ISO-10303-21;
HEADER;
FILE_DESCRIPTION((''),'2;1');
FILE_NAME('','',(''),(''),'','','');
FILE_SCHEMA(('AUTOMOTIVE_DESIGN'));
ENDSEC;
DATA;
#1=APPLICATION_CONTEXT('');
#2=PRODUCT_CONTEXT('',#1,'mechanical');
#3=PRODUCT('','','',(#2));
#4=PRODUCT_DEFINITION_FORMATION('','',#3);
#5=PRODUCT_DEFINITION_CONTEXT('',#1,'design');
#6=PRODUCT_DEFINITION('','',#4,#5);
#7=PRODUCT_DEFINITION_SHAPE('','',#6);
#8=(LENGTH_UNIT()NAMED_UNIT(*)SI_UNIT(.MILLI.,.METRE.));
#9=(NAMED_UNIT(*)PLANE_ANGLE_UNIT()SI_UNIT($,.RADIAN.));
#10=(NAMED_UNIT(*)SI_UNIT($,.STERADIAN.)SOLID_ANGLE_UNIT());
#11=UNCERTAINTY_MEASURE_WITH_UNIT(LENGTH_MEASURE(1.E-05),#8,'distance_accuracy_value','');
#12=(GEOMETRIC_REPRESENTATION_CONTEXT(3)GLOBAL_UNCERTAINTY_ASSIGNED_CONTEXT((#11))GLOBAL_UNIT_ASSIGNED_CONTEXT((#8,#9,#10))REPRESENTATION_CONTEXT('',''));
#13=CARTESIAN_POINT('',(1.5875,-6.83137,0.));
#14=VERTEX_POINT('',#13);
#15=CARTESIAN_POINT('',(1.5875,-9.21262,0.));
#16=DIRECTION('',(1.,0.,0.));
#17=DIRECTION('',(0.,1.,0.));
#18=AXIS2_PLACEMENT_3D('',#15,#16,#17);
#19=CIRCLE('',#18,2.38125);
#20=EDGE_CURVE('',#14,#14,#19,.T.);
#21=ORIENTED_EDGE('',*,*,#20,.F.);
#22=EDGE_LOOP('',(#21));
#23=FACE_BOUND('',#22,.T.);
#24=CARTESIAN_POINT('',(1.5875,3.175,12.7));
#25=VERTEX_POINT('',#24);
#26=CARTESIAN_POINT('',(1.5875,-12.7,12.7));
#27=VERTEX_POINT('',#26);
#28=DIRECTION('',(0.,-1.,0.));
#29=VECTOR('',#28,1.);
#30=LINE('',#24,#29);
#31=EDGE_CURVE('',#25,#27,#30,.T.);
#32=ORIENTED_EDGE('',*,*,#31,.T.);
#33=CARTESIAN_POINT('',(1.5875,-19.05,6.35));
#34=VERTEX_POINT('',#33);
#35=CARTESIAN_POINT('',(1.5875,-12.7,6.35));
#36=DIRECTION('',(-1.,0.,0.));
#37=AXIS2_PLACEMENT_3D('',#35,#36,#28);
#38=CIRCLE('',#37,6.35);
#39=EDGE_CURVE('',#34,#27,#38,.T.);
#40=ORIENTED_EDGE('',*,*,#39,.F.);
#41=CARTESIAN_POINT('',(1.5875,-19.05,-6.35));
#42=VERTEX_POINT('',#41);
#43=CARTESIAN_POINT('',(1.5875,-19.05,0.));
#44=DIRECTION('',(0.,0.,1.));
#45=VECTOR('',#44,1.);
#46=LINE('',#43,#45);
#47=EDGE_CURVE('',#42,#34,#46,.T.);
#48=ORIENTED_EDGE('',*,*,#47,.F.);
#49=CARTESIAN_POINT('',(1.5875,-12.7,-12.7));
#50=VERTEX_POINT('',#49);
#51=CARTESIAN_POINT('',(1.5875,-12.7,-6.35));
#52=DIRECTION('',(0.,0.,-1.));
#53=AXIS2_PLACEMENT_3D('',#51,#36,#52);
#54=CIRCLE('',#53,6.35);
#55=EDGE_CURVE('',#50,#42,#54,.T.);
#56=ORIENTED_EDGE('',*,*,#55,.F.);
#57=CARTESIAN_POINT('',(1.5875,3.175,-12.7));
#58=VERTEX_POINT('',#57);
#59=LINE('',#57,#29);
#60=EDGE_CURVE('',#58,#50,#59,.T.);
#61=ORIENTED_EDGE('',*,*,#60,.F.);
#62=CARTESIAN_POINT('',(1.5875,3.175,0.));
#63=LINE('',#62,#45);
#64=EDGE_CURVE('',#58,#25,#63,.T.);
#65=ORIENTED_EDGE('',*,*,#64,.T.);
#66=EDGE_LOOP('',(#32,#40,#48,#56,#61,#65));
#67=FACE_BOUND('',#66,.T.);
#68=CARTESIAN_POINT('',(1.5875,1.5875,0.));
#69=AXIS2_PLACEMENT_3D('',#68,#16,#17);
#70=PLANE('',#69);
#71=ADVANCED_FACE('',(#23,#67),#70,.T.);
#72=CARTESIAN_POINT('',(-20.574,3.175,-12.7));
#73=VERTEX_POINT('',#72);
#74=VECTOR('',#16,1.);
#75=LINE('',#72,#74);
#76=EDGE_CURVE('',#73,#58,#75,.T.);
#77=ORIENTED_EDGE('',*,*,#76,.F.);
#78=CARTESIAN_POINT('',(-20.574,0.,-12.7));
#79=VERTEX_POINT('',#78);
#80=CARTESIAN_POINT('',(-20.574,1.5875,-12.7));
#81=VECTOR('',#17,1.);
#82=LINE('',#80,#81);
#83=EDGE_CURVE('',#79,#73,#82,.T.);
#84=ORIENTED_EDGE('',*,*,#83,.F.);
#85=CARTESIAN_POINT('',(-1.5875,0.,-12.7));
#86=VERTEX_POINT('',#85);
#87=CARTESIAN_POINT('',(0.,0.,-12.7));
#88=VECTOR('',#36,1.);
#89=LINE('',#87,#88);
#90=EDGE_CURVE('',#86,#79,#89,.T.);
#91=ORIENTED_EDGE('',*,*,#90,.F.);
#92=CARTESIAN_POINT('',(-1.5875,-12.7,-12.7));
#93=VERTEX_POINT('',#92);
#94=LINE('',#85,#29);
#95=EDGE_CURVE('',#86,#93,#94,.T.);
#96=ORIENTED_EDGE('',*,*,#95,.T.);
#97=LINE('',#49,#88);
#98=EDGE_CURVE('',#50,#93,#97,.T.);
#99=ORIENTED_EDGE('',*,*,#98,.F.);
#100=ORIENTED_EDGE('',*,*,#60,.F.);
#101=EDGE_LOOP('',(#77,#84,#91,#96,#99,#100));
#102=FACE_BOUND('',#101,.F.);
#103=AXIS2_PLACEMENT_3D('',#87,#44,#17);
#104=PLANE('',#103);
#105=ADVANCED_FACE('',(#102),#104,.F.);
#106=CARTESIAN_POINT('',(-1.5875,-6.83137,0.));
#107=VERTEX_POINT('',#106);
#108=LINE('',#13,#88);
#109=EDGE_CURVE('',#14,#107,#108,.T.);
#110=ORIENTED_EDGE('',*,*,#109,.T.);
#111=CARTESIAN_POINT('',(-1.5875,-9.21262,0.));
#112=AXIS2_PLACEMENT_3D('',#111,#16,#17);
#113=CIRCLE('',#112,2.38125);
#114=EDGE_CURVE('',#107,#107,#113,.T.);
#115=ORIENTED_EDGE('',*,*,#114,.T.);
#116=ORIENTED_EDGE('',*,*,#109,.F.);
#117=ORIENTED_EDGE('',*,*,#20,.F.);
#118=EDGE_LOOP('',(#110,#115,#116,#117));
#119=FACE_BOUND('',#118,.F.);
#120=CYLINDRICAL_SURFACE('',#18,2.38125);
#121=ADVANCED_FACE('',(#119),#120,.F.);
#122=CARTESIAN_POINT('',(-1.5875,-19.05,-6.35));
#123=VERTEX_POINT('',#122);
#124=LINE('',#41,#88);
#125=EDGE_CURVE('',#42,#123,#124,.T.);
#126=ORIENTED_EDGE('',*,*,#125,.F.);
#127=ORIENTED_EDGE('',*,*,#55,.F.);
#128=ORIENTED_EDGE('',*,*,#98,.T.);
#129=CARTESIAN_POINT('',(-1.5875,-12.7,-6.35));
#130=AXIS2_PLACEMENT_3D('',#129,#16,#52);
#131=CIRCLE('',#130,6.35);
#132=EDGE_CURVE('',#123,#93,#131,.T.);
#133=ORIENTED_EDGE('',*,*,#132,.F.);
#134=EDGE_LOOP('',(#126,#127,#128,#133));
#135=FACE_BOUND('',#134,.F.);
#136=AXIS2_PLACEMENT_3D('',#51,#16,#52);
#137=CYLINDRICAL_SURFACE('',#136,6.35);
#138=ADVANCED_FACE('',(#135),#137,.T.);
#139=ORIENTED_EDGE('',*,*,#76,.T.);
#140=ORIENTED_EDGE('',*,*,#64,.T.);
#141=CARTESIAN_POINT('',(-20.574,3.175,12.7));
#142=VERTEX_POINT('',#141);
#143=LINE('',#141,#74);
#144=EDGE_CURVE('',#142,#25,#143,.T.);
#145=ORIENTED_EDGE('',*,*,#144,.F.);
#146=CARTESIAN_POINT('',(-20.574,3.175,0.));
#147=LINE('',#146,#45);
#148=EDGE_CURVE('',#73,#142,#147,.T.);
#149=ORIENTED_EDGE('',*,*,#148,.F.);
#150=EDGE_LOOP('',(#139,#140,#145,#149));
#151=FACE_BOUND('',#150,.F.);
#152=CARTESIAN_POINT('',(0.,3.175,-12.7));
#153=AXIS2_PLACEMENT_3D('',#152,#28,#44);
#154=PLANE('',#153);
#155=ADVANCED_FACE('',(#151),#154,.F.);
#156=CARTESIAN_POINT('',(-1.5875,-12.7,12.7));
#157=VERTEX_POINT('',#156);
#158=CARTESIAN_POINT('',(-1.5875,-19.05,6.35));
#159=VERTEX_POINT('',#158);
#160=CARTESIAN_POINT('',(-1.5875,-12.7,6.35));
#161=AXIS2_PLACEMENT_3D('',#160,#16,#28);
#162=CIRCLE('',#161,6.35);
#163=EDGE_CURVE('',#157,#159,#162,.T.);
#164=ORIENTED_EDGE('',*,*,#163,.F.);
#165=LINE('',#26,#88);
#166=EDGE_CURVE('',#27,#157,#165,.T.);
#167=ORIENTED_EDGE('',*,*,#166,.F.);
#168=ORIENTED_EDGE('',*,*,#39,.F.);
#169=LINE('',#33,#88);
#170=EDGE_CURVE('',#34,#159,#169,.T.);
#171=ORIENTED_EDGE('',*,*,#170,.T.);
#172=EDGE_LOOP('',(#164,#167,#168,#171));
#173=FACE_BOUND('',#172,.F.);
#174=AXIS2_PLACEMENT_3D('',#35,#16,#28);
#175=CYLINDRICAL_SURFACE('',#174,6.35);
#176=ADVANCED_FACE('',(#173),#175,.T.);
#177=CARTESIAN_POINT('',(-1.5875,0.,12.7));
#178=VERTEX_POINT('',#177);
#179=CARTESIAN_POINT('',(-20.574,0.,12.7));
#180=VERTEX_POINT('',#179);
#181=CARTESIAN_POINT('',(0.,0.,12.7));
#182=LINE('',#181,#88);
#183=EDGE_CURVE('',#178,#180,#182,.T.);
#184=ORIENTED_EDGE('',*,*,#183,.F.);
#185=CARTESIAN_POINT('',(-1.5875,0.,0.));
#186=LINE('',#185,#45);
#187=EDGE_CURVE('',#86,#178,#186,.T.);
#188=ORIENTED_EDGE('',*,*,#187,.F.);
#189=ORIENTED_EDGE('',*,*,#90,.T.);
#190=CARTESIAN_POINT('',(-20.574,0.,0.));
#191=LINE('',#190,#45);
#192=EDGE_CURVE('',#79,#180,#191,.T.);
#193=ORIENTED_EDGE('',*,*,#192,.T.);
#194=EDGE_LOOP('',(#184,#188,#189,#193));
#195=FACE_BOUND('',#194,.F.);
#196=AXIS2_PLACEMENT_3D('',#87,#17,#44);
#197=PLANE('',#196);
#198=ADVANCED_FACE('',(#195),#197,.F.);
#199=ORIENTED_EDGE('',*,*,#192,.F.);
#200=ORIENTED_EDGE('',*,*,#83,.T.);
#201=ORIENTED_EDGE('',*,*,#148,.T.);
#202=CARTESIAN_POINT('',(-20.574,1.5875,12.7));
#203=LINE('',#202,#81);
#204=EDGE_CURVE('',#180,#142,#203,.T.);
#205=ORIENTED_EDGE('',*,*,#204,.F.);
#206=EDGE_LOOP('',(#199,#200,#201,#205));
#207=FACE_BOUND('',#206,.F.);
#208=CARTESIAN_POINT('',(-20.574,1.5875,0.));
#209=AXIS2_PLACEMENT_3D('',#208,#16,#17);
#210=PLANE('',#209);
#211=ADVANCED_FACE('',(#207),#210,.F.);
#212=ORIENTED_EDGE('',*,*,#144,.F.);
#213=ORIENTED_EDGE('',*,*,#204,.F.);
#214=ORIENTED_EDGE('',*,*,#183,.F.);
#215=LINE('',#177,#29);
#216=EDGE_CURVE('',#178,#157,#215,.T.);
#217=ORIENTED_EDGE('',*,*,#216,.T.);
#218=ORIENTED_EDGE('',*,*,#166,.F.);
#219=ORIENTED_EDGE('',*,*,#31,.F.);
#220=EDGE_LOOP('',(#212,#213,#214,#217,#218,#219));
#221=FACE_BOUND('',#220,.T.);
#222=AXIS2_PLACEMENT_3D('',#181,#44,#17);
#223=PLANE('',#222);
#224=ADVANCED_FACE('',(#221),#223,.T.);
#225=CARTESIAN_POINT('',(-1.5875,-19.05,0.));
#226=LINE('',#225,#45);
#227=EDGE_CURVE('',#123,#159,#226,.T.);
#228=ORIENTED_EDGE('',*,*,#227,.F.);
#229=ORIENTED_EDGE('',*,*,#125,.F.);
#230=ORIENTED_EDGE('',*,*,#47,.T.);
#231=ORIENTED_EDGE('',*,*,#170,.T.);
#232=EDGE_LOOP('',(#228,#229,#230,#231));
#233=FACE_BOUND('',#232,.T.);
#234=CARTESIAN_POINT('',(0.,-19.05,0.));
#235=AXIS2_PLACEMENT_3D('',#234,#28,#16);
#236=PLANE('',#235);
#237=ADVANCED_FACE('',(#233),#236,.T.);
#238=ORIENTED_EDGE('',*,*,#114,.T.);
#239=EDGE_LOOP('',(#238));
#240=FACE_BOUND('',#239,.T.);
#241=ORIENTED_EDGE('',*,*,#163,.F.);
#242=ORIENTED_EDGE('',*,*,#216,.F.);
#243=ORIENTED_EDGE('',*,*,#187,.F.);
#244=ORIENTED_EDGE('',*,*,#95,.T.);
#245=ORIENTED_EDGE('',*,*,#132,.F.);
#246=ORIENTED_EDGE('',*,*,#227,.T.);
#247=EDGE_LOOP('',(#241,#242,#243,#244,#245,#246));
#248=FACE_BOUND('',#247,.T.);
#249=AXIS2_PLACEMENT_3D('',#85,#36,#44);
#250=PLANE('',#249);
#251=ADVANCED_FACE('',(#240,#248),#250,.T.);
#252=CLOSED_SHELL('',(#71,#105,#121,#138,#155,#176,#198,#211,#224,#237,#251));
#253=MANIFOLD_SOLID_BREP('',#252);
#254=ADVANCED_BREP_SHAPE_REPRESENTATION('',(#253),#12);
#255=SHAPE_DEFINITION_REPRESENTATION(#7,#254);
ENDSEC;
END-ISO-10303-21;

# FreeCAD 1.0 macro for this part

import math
import FreeCAD as App
import Part
import Sketcher

V = App.Vector
Q = App.Units.Quantity

doc = App.newDocument("Part")
body = doc.addObject("PartDesign::Body", "Body")

sketch1 = body.newObject("Sketcher::SketchObject", "Sketch")
sketch1.AttachmentSupport = (doc.getObject("XZ_Plane"), [""])
sketch1.MapMode = "FlatFace"
sketch1.addGeometry([
    Part.LineSegment(V(-1.6, 12.7, 0), V(-1.6, -12.7, 0)),
    Part.LineSegment(V(-1.6, -12.7, 0), V(1.6, -12.7, 0)),
    Part.LineSegment(V(1.6, -12.7, 0), V(1.6, 12.7, 0)),
    Part.LineSegment(V(1.6, 12.7, 0), V(-1.6, 12.7, 0)),
], False)
sketch1.addConstraint([
    Sketcher.Constraint("Coincident", 0, 2, 1, 1),
    Sketcher.Constraint("Coincident", 1, 2, 2, 1),
    Sketcher.Constraint("Coincident", 2, 2, 3, 1),
    Sketcher.Constraint("Coincident", 3, 2, 0, 1),
    Sketcher.Constraint("Vertical", 0),
    Sketcher.Constraint("Horizontal", 1),
    Sketcher.Constraint("Vertical", 2),
    Sketcher.Constraint("Horizontal", 3),
    Sketcher.Constraint("Symmetric", 0, 2, 2, 2, -1, 1),
    Sketcher.Constraint("DistanceY", 0, 2, 0, 1, Q("1 in")),
    Sketcher.Constraint("DistanceX", 1, 1, 1, 2, Q("0.125 in")),
])
pad1 = body.newObject("PartDesign::Pad", "Pad")
pad1.Profile = sketch1
pad1.Length = Q("0.75 in")

sketch2 = body.newObject("Sketcher::SketchObject", "Sketch001")
sketch2.AttachmentSupport = (doc.getObject("YZ_Plane"), [""])
sketch2.MapMode = "FlatFace"
sketch2.AttachmentOffset = App.Placement(V(0, 0, 0.0625 * 25.4), App.Rotation())
sketch2.addGeometry([
    Part.ArcOfCircle(Part.Circle(V(-12.7, 6.3, 0), V(0, 0, 1), 6.3), math.radians(90), math.radians(180)),
    Part.LineSegment(V(-12.7, 12.7, 0), V(-19.1, 12.7, 0)),
    Part.LineSegment(V(-19.1, 12.7, 0), V(-19.1, 6.3, 0)),
    Part.ArcOfCircle(Part.Circle(V(-12.7, -6.3, 0), V(0, 0, 1), 6.3), math.radians(180), math.radians(270)),
    Part.LineSegment(V(-19.1, -6.3, 0), V(-19.1, -12.7, 0)),
    Part.LineSegment(V(-19.1, -12.7, 0), V(-12.7, -12.7, 0)),
    Part.Circle(V(-9.2, 0, 0), V(0, 0, 1), 2.4),
], False)
sketch2.addConstraint([
    Sketcher.Constraint("Tangent", 0, 1, 1, 1),
    Sketcher.Constraint("Coincident", 1, 2, 2, 1),
    Sketcher.Constraint("Tangent", 2, 2, 0, 2),
    Sketcher.Constraint("Tangent", 3, 1, 4, 1),
    Sketcher.Constraint("Coincident", 4, 2, 5, 1),
    Sketcher.Constraint("Tangent", 5, 2, 3, 2),
    Sketcher.Constraint("Horizontal", 1),
    Sketcher.Constraint("Vertical", 2),
    Sketcher.Constraint("Vertical", 4),
    Sketcher.Constraint("Horizontal", 5),
    Sketcher.Constraint("Equal", 0, 3),
    Sketcher.Constraint("Symmetric", 0, 3, 3, 3, -1),
    Sketcher.Constraint("PointOnObject", 6, 3, -1),
    Sketcher.Constraint("Radius", 0, Q("0.25 in")),
    Sketcher.Constraint("Diameter", 6, Q("0.1875 in")),
    Sketcher.Constraint("DistanceX", 0, 3, -1, 1, Q("0.5 in")),
    Sketcher.Constraint("DistanceY", -1, 1, 0, 1, Q("0.5 in")),
    Sketcher.Constraint("DistanceX", 6, 3, -1, 1, Q("9.21262 mm")),
])
pocket1 = body.newObject("PartDesign::Pocket", "Pocket")
pocket1.Profile = sketch2
pocket1.Length = Q("1 in")

sketch3 = body.newObject("Sketcher::SketchObject", "Sketch002")
sketch3.AttachmentSupport = (doc.getObject("YZ_Plane"), [""])
sketch3.MapMode = "FlatFace"
sketch3.addGeometry([
    Part.LineSegment(V(0, 12.7, 0), V(0, -12.7, 0)),
    Part.LineSegment(V(0, -12.7, 0), V(3.2, -12.7, 0)),
    Part.LineSegment(V(3.2, -12.7, 0), V(3.2, 12.7, 0)),
    Part.LineSegment(V(3.2, 12.7, 0), V(0, 12.7, 0)),
], False)
sketch3.addConstraint([
    Sketcher.Constraint("Coincident", 0, 2, 1, 1),
    Sketcher.Constraint("Coincident", 1, 2, 2, 1),
    Sketcher.Constraint("Coincident", 2, 2, 3, 1),
    Sketcher.Constraint("Coincident", 3, 2, 0, 1),
    Sketcher.Constraint("Vertical", 0),
    Sketcher.Constraint("Horizontal", 1),
    Sketcher.Constraint("Vertical", 2),
    Sketcher.Constraint("Horizontal", 3),
    Sketcher.Constraint("Symmetric", 0, 2, 3, 2, -1, 1),
    Sketcher.Constraint("DistanceY", 0, 2, 0, 1, Q("1 in")),
    Sketcher.Constraint("DistanceX", 1, 1, 1, 2, Q("0.125 in")),
])
pad2 = body.newObject("PartDesign::Pad", "Pad001")
pad2.Profile = sketch3
pad2.Type = "TwoLengths"
pad2.Length = Q("0.81 in")
pad2.Length2 = Q("0.0625 in")
pad2.Reversed = True

doc.recompute()
